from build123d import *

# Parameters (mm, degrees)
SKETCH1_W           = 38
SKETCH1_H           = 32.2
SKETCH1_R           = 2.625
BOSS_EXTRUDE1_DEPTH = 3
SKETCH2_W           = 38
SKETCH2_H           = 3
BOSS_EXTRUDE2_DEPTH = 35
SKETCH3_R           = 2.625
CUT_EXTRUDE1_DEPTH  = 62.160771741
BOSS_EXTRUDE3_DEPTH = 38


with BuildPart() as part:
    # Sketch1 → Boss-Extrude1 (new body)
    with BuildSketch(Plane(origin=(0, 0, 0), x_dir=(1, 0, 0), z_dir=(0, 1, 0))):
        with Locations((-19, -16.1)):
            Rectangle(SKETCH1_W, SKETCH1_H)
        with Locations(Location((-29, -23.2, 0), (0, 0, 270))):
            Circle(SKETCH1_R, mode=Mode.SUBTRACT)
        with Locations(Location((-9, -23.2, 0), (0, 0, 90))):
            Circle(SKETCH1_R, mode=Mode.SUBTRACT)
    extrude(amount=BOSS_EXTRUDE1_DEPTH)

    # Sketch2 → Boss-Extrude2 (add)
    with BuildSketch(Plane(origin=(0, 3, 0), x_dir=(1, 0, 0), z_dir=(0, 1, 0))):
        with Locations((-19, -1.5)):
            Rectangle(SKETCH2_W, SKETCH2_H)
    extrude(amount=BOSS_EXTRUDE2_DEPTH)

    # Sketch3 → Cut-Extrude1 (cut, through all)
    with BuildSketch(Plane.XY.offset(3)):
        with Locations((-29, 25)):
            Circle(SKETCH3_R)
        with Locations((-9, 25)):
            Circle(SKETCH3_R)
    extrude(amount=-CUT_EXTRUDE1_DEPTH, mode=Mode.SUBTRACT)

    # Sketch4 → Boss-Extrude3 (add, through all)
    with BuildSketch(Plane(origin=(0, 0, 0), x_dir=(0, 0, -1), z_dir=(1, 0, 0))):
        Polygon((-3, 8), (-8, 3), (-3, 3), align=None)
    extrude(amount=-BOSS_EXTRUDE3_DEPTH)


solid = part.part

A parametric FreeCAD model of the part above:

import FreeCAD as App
import Part
import Sketcher
from FreeCAD import Vector
Q = App.Units.Quantity


def add_polygon(sketch, points):
    """Adds a closed chain of lines whose ends are joined by coincident constraints."""
    first, n = sketch.GeometryCount, len(points)
    for a, b in zip(points, points[1:] + points[:1]):
        sketch.addGeometry(Part.LineSegment(App.Vector(*a, 0), App.Vector(*b, 0)), False)
    for i in range(n):
        sketch.addConstraint(Sketcher.Constraint("Coincident", first + i, 2, first + (i + 1) % n, 1))

doc = App.newDocument("Part")
body = doc.addObject("PartDesign::Body", "Body")

# Sketch on XZ plane
sketch1 = body.newObject("Sketcher::SketchObject", "Sketch")
sketch1.AttachmentSupport = (doc.getObject("XZ_Plane"), [""])
sketch1.MapMode = "FlatFace"
add_polygon(sketch1, [(-38, 0), (-38, 32.2), (0, 32.2), (0, 0)])  # lines 0-3
sketch1.addGeometry(Part.Circle(Vector(-29, 23.2, 0), Vector(0, 0, 1), 2.625), False)  # 4
sketch1.addGeometry(Part.Circle(Vector(-9, 23.2, 0), Vector(0, 0, 1), 2.625), False)  # 5
sketch1.addConstraint([
    Sketcher.Constraint("Vertical", 0),
    Sketcher.Constraint("Horizontal", 1),
    Sketcher.Constraint("Vertical", 2),
    Sketcher.Constraint("Horizontal", 3),
    Sketcher.Constraint("Coincident", 2, 2, -1, 1),
    Sketcher.Constraint("Equal", 4, 5),
    Sketcher.Constraint("Horizontal", 4, 3, 5, 3),
    Sketcher.Constraint("Diameter", 4, Q("5.25 mm")),
    Sketcher.Constraint("DistanceX", 1, 1, 1, 2, Q("38 mm")),
    Sketcher.Constraint("DistanceY", 0, 1, 0, 2, Q("32.2 mm")),
    Sketcher.Constraint("DistanceX", 4, 3, -1, 1, Q("29 mm")),
    Sketcher.Constraint("DistanceX", 5, 3, -1, 1, Q("9 mm")),
    Sketcher.Constraint("DistanceY", 4, 3, 0, 2, Q("9 mm")),
])
pad1 = body.newObject("PartDesign::Pad", "Pad")
pad1.Profile = sketch1
pad1.Length = 3
pad1.Reversed = True

# Sketch on XZ plane
sketch2 = body.newObject("Sketcher::SketchObject", "Sketch001")
sketch2.AttachmentSupport = (doc.getObject("XZ_Plane"), [""])
sketch2.MapMode = "FlatFace"
sketch2.AttachmentOffset = App.Placement(Vector(0, 0, -3), App.Rotation())
add_polygon(sketch2, [(-38, 0), (-38, 3), (0, 3), (0, 0)])  # lines 0-3
sketch2.addConstraint([
    Sketcher.Constraint("Vertical", 0),
    Sketcher.Constraint("Horizontal", 1),
    Sketcher.Constraint("Vertical", 2),
    Sketcher.Constraint("Horizontal", 3),
    Sketcher.Constraint("Coincident", 2, 2, -1, 1),
    Sketcher.Constraint("DistanceX", 1, 1, 1, 2, Q("38 mm")),
    Sketcher.Constraint("DistanceY", 0, 1, 0, 2, Q("3 mm")),
])
pad2 = body.newObject("PartDesign::Pad", "Pad001")
pad2.Profile = sketch2
pad2.Length = 35
pad2.Reversed = True

# Sketch on XY plane
sketch3 = body.newObject("Sketcher::SketchObject", "Sketch002")
sketch3.AttachmentSupport = (doc.getObject("XY_Plane"), [""])
sketch3.MapMode = "FlatFace"
sketch3.AttachmentOffset = App.Placement(Vector(0, 0, 3), App.Rotation())
sketch3.addGeometry([
    Part.Circle(Vector(-29, 25, 0), Vector(0, 0, 1), 2.625),
    Part.Circle(Vector(-9, 25, 0), Vector(0, 0, 1), 2.625),
], False)
sketch3.addConstraint([
    Sketcher.Constraint("Equal", 0, 1),
    Sketcher.Constraint("Horizontal", 0, 3, 1, 3),
    Sketcher.Constraint("Diameter", 0, Q("5.25 mm")),
    Sketcher.Constraint("DistanceX", 0, 3, -1, 1, Q("29 mm")),
    Sketcher.Constraint("DistanceY", -1, 1, 0, 3, Q("25 mm")),
    Sketcher.Constraint("DistanceX", 1, 3, -1, 1, Q("9 mm")),
])
pocket1 = body.newObject("PartDesign::Pocket", "Pocket")
pocket1.Profile = sketch3
pocket1.Type = "ThroughAll"

# Sketch on YZ plane
sketch4 = body.newObject("Sketcher::SketchObject", "Sketch003")
sketch4.AttachmentSupport = (doc.getObject("YZ_Plane"), [""])
sketch4.MapMode = "FlatFace"
add_polygon(sketch4, [(8, 3), (3, 8), (3, 3)])  # lines 0-2
sketch4.addConstraint([
    Sketcher.Constraint("Vertical", 1),
    Sketcher.Constraint("Horizontal", 2),
    Sketcher.Constraint("Equal", 2, 1),
    Sketcher.Constraint("DistanceX", 2, 1, 2, 2, Q("5 mm")),
    Sketcher.Constraint("DistanceX", -1, 1, 0, 2, Q("3 mm")),
    Sketcher.Constraint("DistanceY", -1, 1, 0, 2, Q("8 mm")),
])
pad3 = body.newObject("PartDesign::Pad", "Pad002")
pad3.Profile = sketch4
pad3.Length = 38
pad3.Reversed = True

doc.recompute()
